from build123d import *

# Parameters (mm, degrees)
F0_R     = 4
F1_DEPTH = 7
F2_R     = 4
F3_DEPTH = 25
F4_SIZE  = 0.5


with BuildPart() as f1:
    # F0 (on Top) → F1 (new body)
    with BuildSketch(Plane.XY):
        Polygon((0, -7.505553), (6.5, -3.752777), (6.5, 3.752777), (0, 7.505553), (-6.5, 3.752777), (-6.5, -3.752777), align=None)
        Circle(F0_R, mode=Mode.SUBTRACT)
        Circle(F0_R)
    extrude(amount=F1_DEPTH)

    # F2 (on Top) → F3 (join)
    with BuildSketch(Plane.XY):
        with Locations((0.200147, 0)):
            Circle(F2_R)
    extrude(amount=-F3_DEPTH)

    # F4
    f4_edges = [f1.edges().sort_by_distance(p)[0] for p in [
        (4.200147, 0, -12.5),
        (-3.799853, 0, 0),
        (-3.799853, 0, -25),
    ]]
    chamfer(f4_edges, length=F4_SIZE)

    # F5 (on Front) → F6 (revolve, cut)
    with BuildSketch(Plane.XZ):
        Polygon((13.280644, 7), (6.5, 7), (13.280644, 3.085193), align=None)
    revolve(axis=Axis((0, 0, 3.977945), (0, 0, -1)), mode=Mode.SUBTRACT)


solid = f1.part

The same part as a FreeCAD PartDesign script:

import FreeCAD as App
import Part
import Sketcher
Q = App.Units.Quantity


def edges_at(feature, points):
    """Names of the edges that pass closest to the given points."""
    edges = feature.Shape.Edges
    near = lambda p: min(range(len(edges)), key=lambda i: edges[i].distToShape(Part.Vertex(*p))[0])
    return sorted({f"Edge{near(p) + 1}" for p in points})


def add_polygon(sketch, points):
    """Adds a closed chain of lines whose ends are joined by coincident constraints."""
    first, n = sketch.GeometryCount, len(points)
    for a, b in zip(points, points[1:] + points[:1]):
        sketch.addGeometry(Part.LineSegment(App.Vector(*a, 0), App.Vector(*b, 0)), False)
    for i in range(n):
        sketch.addConstraint(Sketcher.Constraint("Coincident", first + i, 2, first + (i + 1) % n, 1))

doc = App.newDocument("Part")
body = doc.addObject("PartDesign::Body", "Body")

sketch1 = body.newObject("Sketcher::SketchObject", "Sketch")
sketch1.AttachmentSupport = (doc.getObject("XY_Plane"), [""])
sketch1.MapMode = "FlatFace"
add_polygon(sketch1, [(0, -8), (6, -4), (6, 4), (0, 8), (-6, 4), (-6, -4)])
sketch1.addConstraint(Sketcher.Constraint("Vertical", 1))
sketch1.addConstraint(Sketcher.Constraint("Vertical", 4))
sketch1.addConstraint(Sketcher.Constraint("Symmetric", 0, 2, 3, 2, -1, 1))
sketch1.addConstraint(Sketcher.Constraint("Symmetric", 2, 2, 5, 2, -1, 1))
sketch1.addConstraint(Sketcher.Constraint("PointOnObject", 2, 2, -2))
sketch1.addConstraint(Sketcher.Constraint("Parallel", 2, 5))
sketch1.addConstraint(Sketcher.Constraint("Horizontal", 1, 2, 3, 2))
sketch1.addConstraint(Sketcher.Constraint("Angle", 0, Q("29.999995 deg")))
sketch1.addConstraint(Sketcher.Constraint("DistanceX", 3, 2, 1, 2, Q("13 mm")))
sketch1.addConstraint(Sketcher.Constraint("DistanceY", 1, 1, 1, 2, Q("7.505554 mm")))
pad1 = body.newObject("PartDesign::Pad", "Pad")
pad1.Profile = sketch1
pad1.Length = 7

sketch2 = body.newObject("Sketcher::SketchObject", "Sketch001")
sketch2.AttachmentSupport = (doc.getObject("XY_Plane"), [""])
sketch2.MapMode = "FlatFace"
sketch2.addGeometry(Part.Circle(App.Vector(0.2, 0, 0), App.Vector(0, 0, 1), 4), False)
sketch2.addConstraint(Sketcher.Constraint("PointOnObject", 0, 3, -1))
sketch2.addConstraint(Sketcher.Constraint("Diameter", 0, Q("8 mm")))
sketch2.addConstraint(Sketcher.Constraint("DistanceX", -1, 1, 0, 3, Q("0.200147 mm")))
pad2 = body.newObject("PartDesign::Pad", "Pad001")
pad2.Profile = sketch2
pad2.Length = 25
pad2.Reversed = True
doc.recompute()

chamfer = body.newObject("PartDesign::Chamfer", "Chamfer")
chamfer.Base = (pad2, edges_at(pad2, [(4.2, 0, -12.5), (-3.8, 0, 0), (-3.8, 0, -25)]))
chamfer.Size = 0.5

sketch3 = body.newObject("Sketcher::SketchObject", "Sketch002")
sketch3.AttachmentSupport = (doc.getObject("XZ_Plane"), [""])
sketch3.MapMode = "FlatFace"
add_polygon(sketch3, [(13.3, 7), (6.5, 7), (13.3, 3.1)])
sketch3.addConstraint(Sketcher.Constraint("Horizontal", 0))
sketch3.addConstraint(Sketcher.Constraint("Vertical", 2))
sketch3.addConstraint(Sketcher.Constraint("Angle", 1, Q("-30.000002 deg")))
sketch3.addConstraint(Sketcher.Constraint("DistanceY", -1, 1, 0, 2, Q("7 mm")))
sketch3.addConstraint(Sketcher.Constraint("DistanceX", -1, 1, 0, 2, Q("6.5 mm")))
sketch3.addConstraint(Sketcher.Constraint("DistanceX", 0, 2, 0, 1, Q("6.780644 mm")))
groove = body.newObject("PartDesign::Groove", "Groove")
groove.Profile = sketch3
groove.ReferenceAxis = (sketch3, ["V_Axis"])
groove.Angle = 360

doc.recompute()
